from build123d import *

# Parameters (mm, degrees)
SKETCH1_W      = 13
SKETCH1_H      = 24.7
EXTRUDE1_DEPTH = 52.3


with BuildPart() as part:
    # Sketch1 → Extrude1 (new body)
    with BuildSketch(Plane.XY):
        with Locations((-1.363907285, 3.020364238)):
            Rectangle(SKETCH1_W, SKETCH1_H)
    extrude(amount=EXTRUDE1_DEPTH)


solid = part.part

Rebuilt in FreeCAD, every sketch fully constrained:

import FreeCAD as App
import Part
import Sketcher

V = App.Vector

doc = App.newDocument("Part")
body = doc.addObject("PartDesign::Body", "Body")

sketch1 = body.newObject("Sketcher::SketchObject", "Sketch")
sketch1.AttachmentSupport = (doc.getObject("XY_Plane"), [""])
sketch1.MapMode = "FlatFace"
sketch1.addGeometry([
    Part.LineSegment(V(-8, 15, 0), V(-8, -9, 0)),
    Part.LineSegment(V(-8, -9, 0), V(5, -9, 0)),
    Part.LineSegment(V(5, -9, 0), V(5, 15, 0)),
    Part.LineSegment(V(5, 15, 0), V(-8, 15, 0)),
], False)
sketch1.addConstraint([
    Sketcher.Constraint("Coincident", 0, 2, 1, 1),
    Sketcher.Constraint("Coincident", 1, 2, 2, 1),
    Sketcher.Constraint("Coincident", 2, 2, 3, 1),
    Sketcher.Constraint("Coincident", 3, 2, 0, 1),
    Sketcher.Constraint("Vertical", 0),
    Sketcher.Constraint("Horizontal", 1),
    Sketcher.Constraint("Vertical", 2),
    Sketcher.Constraint("Horizontal", 3),
    Sketcher.Constraint("DistanceX", 1, 1, 1, 2, 13.0),
    Sketcher.Constraint("DistanceY", 0, 2, 0, 1, 24.7),
    Sketcher.Constraint("DistanceX", 0, 2, -1, 1, 7.863907),
    Sketcher.Constraint("DistanceY", 0, 2, -1, 1, 9.329636),
])
pad1 = body.newObject("PartDesign::Pad", "Pad")
pad1.Profile = sketch1
pad1.Length = 52.3

doc.recompute()
